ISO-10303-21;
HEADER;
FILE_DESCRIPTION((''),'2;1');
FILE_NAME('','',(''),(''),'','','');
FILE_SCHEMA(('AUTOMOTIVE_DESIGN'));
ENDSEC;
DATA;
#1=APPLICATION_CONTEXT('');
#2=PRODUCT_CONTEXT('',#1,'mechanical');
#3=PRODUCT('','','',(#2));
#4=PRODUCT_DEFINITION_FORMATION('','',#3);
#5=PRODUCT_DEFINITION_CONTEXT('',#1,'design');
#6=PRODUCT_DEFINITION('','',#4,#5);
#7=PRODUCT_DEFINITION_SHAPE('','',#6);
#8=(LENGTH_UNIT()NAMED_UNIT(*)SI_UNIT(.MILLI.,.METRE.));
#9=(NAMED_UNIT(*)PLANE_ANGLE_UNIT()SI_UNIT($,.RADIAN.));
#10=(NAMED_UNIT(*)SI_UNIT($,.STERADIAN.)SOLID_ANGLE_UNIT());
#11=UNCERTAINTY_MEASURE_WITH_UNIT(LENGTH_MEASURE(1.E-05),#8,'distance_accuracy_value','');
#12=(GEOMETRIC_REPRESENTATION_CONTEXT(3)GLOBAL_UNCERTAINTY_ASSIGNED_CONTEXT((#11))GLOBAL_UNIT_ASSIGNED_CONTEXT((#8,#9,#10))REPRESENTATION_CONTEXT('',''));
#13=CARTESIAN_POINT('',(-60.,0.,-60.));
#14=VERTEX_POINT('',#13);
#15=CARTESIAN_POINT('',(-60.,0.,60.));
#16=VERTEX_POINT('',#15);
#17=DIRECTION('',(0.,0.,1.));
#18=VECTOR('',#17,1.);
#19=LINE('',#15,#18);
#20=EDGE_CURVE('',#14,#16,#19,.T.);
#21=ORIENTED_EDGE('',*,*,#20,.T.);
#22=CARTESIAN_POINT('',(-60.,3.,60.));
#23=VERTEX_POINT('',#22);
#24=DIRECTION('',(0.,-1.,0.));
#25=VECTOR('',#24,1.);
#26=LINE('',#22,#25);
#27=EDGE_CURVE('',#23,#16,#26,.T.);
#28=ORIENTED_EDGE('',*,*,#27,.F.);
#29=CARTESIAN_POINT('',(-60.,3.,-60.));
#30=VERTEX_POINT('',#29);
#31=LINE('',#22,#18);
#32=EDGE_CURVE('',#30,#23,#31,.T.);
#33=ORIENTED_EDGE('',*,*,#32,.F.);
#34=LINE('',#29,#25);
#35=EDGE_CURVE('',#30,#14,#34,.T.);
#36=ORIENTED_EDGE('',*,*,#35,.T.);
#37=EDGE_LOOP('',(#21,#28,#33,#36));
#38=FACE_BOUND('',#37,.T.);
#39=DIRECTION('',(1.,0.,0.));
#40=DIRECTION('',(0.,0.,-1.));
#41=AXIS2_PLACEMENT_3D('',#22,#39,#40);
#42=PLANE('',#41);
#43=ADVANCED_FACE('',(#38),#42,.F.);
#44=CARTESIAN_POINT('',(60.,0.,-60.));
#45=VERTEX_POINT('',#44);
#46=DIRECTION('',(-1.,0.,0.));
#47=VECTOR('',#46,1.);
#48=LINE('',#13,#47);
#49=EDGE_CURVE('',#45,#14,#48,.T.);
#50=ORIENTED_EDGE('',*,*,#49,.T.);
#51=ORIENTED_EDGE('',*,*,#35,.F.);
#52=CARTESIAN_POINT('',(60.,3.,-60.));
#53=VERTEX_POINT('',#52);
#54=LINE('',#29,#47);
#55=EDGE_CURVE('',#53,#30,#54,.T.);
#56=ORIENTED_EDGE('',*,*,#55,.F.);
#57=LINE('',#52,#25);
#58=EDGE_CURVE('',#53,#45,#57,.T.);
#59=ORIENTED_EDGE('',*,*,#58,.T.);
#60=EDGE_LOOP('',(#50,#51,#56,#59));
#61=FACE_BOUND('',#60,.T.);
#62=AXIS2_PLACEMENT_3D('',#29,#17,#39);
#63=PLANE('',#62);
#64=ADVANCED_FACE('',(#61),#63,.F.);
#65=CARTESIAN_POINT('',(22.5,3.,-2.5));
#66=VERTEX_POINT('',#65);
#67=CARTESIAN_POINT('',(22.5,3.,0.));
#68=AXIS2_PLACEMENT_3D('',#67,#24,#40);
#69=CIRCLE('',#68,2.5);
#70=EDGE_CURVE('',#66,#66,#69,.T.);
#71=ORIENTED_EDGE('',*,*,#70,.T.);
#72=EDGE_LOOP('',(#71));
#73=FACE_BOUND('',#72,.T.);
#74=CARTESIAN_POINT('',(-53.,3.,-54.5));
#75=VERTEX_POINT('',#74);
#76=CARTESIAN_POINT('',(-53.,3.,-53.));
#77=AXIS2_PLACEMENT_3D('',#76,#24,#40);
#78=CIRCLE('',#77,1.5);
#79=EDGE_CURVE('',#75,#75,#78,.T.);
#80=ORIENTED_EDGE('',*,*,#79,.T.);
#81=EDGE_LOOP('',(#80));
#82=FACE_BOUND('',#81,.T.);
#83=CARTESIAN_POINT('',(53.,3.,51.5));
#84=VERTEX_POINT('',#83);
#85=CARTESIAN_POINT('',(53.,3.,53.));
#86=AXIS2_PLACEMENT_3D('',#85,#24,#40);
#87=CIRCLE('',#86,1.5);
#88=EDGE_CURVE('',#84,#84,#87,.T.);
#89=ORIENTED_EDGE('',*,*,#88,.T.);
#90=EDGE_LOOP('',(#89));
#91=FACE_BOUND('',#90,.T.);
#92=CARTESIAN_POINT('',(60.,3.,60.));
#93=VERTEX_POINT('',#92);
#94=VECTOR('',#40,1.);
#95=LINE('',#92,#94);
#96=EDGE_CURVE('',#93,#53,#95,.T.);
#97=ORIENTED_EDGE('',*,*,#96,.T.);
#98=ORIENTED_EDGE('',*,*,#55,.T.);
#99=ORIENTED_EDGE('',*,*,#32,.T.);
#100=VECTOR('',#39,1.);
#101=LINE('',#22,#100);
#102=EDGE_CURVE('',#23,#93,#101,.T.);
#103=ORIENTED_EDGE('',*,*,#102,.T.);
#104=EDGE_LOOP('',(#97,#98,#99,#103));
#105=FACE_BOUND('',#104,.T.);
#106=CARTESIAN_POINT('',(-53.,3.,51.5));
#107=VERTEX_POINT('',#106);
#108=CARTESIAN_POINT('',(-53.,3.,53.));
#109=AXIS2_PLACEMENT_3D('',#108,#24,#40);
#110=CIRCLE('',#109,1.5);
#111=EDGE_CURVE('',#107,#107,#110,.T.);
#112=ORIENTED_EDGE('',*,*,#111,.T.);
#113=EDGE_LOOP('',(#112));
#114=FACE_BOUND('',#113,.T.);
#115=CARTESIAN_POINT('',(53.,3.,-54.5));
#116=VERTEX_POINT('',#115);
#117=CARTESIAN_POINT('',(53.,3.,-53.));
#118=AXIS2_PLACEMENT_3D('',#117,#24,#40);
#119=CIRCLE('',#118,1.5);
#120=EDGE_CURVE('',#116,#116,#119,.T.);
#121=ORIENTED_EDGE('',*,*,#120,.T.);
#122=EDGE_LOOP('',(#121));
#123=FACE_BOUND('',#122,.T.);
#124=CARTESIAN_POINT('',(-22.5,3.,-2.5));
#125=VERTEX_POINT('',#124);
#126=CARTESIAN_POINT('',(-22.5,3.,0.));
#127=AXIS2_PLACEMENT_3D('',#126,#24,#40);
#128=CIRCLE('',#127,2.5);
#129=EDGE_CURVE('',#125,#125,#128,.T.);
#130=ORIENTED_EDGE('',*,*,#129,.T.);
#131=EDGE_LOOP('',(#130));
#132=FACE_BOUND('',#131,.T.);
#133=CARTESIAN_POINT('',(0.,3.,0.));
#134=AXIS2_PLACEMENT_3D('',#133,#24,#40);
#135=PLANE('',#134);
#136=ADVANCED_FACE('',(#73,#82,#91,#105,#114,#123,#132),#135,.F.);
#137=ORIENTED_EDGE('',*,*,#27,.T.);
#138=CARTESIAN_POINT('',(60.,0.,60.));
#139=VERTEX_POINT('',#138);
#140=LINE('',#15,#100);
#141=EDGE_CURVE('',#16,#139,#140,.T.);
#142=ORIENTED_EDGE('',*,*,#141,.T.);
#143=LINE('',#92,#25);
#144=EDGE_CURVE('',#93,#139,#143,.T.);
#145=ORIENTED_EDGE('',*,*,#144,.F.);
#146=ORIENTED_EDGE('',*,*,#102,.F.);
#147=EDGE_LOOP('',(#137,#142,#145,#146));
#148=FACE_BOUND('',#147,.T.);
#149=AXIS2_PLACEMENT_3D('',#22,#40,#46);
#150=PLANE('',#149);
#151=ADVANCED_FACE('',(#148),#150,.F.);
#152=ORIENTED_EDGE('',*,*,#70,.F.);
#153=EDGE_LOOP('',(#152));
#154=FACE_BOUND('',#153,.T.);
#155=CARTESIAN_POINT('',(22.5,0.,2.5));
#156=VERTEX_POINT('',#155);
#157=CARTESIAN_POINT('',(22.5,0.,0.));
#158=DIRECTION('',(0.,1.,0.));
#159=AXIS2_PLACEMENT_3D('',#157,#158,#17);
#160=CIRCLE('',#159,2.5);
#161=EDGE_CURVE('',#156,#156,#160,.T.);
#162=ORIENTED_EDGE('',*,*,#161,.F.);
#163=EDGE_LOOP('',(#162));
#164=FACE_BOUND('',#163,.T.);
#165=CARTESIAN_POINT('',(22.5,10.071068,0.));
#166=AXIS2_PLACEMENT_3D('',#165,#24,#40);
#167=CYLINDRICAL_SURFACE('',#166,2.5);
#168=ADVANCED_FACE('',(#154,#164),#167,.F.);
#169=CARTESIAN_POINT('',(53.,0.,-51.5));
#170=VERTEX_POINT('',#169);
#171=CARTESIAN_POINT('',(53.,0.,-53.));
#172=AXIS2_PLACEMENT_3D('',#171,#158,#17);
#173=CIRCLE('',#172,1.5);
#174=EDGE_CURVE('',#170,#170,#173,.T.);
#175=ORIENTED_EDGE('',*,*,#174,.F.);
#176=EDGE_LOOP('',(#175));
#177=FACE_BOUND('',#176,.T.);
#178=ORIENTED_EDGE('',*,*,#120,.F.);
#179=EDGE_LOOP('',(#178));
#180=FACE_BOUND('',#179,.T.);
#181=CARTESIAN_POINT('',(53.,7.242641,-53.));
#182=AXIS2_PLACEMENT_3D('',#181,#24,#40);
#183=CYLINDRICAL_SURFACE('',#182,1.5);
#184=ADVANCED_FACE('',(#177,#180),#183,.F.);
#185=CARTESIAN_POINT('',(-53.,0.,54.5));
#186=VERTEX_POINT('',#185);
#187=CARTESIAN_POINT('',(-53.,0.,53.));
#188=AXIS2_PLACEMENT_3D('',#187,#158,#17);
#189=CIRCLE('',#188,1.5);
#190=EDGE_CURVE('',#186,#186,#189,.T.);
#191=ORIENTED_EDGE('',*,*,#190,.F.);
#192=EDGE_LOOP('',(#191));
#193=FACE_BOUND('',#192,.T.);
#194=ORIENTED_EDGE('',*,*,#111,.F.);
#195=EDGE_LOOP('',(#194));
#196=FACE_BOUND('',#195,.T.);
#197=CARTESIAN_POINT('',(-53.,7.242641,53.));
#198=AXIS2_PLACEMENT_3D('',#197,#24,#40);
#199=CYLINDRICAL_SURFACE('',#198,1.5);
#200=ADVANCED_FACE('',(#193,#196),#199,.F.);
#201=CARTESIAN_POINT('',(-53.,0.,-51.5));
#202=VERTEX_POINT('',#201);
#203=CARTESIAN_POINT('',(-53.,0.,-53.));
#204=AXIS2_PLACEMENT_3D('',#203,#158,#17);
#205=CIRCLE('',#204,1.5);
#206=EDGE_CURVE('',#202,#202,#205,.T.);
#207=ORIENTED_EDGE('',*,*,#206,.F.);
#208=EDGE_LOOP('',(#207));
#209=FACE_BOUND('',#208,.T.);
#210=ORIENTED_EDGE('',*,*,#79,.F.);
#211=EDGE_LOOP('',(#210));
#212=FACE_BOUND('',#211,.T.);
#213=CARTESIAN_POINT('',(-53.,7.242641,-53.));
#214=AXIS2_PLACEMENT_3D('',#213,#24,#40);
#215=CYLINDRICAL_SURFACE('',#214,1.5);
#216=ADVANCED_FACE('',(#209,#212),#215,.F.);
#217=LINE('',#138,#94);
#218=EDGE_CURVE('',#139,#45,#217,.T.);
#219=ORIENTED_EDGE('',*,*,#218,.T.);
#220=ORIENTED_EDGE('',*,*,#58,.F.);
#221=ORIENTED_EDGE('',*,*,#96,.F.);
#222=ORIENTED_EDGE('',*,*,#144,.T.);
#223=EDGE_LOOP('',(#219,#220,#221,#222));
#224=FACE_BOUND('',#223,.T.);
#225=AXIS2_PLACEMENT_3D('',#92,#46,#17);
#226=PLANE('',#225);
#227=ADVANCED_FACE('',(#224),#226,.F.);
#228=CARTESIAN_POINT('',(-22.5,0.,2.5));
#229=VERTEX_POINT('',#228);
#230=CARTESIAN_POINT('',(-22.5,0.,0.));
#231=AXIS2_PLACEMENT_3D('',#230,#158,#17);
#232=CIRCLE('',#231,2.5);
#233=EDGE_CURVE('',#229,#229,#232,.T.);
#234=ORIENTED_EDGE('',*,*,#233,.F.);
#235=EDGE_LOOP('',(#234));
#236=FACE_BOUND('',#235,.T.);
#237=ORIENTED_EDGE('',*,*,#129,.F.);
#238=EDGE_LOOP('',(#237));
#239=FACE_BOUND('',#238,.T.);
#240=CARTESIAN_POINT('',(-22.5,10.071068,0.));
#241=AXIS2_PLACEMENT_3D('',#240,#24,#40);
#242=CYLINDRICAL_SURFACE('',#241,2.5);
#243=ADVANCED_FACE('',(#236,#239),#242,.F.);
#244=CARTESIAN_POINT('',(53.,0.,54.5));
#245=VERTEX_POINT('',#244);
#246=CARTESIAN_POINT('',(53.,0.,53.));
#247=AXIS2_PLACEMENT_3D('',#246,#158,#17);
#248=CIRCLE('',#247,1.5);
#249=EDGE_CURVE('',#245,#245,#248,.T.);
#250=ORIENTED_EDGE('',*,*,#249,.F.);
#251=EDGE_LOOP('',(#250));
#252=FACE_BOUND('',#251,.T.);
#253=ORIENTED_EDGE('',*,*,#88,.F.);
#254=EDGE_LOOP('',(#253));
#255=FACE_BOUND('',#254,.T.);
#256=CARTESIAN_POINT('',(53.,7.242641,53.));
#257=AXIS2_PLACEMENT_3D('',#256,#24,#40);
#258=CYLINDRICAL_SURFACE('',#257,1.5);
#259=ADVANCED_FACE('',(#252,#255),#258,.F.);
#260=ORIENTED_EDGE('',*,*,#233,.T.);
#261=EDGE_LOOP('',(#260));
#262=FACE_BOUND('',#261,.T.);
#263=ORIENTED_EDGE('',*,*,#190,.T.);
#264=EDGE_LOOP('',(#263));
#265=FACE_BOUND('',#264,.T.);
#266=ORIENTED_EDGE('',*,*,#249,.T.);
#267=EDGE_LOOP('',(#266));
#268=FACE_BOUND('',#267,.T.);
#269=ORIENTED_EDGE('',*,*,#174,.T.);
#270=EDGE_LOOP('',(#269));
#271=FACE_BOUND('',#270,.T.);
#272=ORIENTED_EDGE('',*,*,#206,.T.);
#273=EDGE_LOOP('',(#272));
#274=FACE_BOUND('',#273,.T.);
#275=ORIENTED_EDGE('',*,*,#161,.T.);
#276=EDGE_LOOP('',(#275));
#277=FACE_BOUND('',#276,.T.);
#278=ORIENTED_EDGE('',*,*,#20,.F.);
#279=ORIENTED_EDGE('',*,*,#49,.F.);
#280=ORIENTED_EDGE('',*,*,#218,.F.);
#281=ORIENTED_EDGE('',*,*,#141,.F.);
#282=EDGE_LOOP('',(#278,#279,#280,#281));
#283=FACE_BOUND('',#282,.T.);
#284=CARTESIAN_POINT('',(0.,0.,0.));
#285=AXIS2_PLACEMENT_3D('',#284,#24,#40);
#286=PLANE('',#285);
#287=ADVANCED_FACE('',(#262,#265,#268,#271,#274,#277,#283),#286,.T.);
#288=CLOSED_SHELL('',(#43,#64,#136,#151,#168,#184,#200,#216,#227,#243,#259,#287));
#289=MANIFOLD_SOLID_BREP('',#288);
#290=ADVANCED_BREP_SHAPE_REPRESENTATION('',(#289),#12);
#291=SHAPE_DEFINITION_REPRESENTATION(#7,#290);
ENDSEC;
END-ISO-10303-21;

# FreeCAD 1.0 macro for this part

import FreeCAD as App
import Part
import Sketcher

V = App.Vector
Q = App.Units.Quantity


def add_polygon(sketch, points):
    """Adds a closed chain of lines whose ends are joined by coincident constraints."""
    first, n = sketch.GeometryCount, len(points)
    for a, b in zip(points, points[1:] + points[:1]):
        sketch.addGeometry(Part.LineSegment(App.Vector(*a, 0), App.Vector(*b, 0)), False)
    for i in range(n):
        sketch.addConstraint(Sketcher.Constraint("Coincident", first + i, 2, first + (i + 1) % n, 1))

doc = App.newDocument("Part")
body = doc.addObject("PartDesign::Body", "Body")

# Sketch on XZ plane
sketch1 = body.newObject("Sketcher::SketchObject", "Sketch")
sketch1.AttachmentSupport = (doc.getObject("XZ_Plane"), [""])
sketch1.MapMode = "FlatFace"
add_polygon(sketch1, [(-60, -60), (-60, 60), (60, 60), (60, -60)])  # lines 0-3
sketch1.addConstraint(Sketcher.Constraint("Vertical", 0))
sketch1.addConstraint(Sketcher.Constraint("Horizontal", 1))
sketch1.addConstraint(Sketcher.Constraint("Vertical", 2))
sketch1.addConstraint(Sketcher.Constraint("Horizontal", 3))
sketch1.addConstraint(Sketcher.Constraint("Symmetric", 0, 2, 2, 2, -1, 1))
sketch1.addConstraint(Sketcher.Constraint("Equal", 3, 0))
sketch1.addConstraint(Sketcher.Constraint("DistanceX", 1, 1, 1, 2, Q("120 mm")))
pad1 = body.newObject("PartDesign::Pad", "Pad")
pad1.Profile = sketch1
pad1.Length = 3
pad1.Reversed = True

# Sketch on XZ plane
sketch2 = body.newObject("Sketcher::SketchObject", "Sketch001")
sketch2.AttachmentSupport = (doc.getObject("XZ_Plane"), [""])
sketch2.MapMode = "FlatFace"
sketch2.addGeometry(Part.Circle(V(-22.5, 0, 0), V(0, 0, 1), 2.5), False)
sketch2.addGeometry(Part.Circle(V(22.5, 0, 0), V(0, 0, 1), 2.5), False)
sketch2.addConstraint(Sketcher.Constraint("Equal", 0, 1))
sketch2.addConstraint(Sketcher.Constraint("Symmetric", 0, 3, 1, 3, -1, 1))
sketch2.addConstraint(Sketcher.Constraint("PointOnObject", 0, 3, -1))
sketch2.addConstraint(Sketcher.Constraint("Diameter", 0, Q("5 mm")))
sketch2.addConstraint(Sketcher.Constraint("DistanceX", 0, 3, 1, 3, Q("45 mm")))
pocket1 = body.newObject("PartDesign::Pocket", "Pocket")
pocket1.Profile = sketch2
pocket1.Length = 3

# Sketch on XZ plane
sketch3 = body.newObject("Sketcher::SketchObject", "Sketch002")
sketch3.AttachmentSupport = (doc.getObject("XZ_Plane"), [""])
sketch3.MapMode = "FlatFace"
sketch3.addGeometry(Part.Circle(V(-53, -53, 0), V(0, 0, 1), 1.5), False)
sketch3.addGeometry(Part.Circle(V(53, -53, 0), V(0, 0, 1), 1.5), False)
sketch3.addGeometry(Part.Circle(V(-53, 53, 0), V(0, 0, 1), 1.5), False)
sketch3.addGeometry(Part.Circle(V(53, 53, 0), V(0, 0, 1), 1.5), False)
sketch3.addConstraint(Sketcher.Constraint("Equal", 0, 1))
sketch3.addConstraint(Sketcher.Constraint("Equal", 1, 2))
sketch3.addConstraint(Sketcher.Constraint("Equal", 2, 3))
sketch3.addConstraint(Sketcher.Constraint("Symmetric", 1, 3, 2, 3, -1, 1))
sketch3.addConstraint(Sketcher.Constraint("Symmetric", 0, 3, 3, 3, -1, 1))
sketch3.addConstraint(Sketcher.Constraint("Symmetric", 0, 3, 1, 3, -2))
sketch3.addConstraint(Sketcher.Constraint("Diameter", 0, Q("3 mm")))
sketch3.addConstraint(Sketcher.Constraint("DistanceX", 0, 3, -1, 1, Q("53 mm")))
sketch3.addConstraint(Sketcher.Constraint("DistanceY", 0, 3, -1, 1, Q("53 mm")))
pocket2 = body.newObject("PartDesign::Pocket", "Pocket001")
pocket2.Profile = sketch3
pocket2.Length = 3

doc.recompute()
